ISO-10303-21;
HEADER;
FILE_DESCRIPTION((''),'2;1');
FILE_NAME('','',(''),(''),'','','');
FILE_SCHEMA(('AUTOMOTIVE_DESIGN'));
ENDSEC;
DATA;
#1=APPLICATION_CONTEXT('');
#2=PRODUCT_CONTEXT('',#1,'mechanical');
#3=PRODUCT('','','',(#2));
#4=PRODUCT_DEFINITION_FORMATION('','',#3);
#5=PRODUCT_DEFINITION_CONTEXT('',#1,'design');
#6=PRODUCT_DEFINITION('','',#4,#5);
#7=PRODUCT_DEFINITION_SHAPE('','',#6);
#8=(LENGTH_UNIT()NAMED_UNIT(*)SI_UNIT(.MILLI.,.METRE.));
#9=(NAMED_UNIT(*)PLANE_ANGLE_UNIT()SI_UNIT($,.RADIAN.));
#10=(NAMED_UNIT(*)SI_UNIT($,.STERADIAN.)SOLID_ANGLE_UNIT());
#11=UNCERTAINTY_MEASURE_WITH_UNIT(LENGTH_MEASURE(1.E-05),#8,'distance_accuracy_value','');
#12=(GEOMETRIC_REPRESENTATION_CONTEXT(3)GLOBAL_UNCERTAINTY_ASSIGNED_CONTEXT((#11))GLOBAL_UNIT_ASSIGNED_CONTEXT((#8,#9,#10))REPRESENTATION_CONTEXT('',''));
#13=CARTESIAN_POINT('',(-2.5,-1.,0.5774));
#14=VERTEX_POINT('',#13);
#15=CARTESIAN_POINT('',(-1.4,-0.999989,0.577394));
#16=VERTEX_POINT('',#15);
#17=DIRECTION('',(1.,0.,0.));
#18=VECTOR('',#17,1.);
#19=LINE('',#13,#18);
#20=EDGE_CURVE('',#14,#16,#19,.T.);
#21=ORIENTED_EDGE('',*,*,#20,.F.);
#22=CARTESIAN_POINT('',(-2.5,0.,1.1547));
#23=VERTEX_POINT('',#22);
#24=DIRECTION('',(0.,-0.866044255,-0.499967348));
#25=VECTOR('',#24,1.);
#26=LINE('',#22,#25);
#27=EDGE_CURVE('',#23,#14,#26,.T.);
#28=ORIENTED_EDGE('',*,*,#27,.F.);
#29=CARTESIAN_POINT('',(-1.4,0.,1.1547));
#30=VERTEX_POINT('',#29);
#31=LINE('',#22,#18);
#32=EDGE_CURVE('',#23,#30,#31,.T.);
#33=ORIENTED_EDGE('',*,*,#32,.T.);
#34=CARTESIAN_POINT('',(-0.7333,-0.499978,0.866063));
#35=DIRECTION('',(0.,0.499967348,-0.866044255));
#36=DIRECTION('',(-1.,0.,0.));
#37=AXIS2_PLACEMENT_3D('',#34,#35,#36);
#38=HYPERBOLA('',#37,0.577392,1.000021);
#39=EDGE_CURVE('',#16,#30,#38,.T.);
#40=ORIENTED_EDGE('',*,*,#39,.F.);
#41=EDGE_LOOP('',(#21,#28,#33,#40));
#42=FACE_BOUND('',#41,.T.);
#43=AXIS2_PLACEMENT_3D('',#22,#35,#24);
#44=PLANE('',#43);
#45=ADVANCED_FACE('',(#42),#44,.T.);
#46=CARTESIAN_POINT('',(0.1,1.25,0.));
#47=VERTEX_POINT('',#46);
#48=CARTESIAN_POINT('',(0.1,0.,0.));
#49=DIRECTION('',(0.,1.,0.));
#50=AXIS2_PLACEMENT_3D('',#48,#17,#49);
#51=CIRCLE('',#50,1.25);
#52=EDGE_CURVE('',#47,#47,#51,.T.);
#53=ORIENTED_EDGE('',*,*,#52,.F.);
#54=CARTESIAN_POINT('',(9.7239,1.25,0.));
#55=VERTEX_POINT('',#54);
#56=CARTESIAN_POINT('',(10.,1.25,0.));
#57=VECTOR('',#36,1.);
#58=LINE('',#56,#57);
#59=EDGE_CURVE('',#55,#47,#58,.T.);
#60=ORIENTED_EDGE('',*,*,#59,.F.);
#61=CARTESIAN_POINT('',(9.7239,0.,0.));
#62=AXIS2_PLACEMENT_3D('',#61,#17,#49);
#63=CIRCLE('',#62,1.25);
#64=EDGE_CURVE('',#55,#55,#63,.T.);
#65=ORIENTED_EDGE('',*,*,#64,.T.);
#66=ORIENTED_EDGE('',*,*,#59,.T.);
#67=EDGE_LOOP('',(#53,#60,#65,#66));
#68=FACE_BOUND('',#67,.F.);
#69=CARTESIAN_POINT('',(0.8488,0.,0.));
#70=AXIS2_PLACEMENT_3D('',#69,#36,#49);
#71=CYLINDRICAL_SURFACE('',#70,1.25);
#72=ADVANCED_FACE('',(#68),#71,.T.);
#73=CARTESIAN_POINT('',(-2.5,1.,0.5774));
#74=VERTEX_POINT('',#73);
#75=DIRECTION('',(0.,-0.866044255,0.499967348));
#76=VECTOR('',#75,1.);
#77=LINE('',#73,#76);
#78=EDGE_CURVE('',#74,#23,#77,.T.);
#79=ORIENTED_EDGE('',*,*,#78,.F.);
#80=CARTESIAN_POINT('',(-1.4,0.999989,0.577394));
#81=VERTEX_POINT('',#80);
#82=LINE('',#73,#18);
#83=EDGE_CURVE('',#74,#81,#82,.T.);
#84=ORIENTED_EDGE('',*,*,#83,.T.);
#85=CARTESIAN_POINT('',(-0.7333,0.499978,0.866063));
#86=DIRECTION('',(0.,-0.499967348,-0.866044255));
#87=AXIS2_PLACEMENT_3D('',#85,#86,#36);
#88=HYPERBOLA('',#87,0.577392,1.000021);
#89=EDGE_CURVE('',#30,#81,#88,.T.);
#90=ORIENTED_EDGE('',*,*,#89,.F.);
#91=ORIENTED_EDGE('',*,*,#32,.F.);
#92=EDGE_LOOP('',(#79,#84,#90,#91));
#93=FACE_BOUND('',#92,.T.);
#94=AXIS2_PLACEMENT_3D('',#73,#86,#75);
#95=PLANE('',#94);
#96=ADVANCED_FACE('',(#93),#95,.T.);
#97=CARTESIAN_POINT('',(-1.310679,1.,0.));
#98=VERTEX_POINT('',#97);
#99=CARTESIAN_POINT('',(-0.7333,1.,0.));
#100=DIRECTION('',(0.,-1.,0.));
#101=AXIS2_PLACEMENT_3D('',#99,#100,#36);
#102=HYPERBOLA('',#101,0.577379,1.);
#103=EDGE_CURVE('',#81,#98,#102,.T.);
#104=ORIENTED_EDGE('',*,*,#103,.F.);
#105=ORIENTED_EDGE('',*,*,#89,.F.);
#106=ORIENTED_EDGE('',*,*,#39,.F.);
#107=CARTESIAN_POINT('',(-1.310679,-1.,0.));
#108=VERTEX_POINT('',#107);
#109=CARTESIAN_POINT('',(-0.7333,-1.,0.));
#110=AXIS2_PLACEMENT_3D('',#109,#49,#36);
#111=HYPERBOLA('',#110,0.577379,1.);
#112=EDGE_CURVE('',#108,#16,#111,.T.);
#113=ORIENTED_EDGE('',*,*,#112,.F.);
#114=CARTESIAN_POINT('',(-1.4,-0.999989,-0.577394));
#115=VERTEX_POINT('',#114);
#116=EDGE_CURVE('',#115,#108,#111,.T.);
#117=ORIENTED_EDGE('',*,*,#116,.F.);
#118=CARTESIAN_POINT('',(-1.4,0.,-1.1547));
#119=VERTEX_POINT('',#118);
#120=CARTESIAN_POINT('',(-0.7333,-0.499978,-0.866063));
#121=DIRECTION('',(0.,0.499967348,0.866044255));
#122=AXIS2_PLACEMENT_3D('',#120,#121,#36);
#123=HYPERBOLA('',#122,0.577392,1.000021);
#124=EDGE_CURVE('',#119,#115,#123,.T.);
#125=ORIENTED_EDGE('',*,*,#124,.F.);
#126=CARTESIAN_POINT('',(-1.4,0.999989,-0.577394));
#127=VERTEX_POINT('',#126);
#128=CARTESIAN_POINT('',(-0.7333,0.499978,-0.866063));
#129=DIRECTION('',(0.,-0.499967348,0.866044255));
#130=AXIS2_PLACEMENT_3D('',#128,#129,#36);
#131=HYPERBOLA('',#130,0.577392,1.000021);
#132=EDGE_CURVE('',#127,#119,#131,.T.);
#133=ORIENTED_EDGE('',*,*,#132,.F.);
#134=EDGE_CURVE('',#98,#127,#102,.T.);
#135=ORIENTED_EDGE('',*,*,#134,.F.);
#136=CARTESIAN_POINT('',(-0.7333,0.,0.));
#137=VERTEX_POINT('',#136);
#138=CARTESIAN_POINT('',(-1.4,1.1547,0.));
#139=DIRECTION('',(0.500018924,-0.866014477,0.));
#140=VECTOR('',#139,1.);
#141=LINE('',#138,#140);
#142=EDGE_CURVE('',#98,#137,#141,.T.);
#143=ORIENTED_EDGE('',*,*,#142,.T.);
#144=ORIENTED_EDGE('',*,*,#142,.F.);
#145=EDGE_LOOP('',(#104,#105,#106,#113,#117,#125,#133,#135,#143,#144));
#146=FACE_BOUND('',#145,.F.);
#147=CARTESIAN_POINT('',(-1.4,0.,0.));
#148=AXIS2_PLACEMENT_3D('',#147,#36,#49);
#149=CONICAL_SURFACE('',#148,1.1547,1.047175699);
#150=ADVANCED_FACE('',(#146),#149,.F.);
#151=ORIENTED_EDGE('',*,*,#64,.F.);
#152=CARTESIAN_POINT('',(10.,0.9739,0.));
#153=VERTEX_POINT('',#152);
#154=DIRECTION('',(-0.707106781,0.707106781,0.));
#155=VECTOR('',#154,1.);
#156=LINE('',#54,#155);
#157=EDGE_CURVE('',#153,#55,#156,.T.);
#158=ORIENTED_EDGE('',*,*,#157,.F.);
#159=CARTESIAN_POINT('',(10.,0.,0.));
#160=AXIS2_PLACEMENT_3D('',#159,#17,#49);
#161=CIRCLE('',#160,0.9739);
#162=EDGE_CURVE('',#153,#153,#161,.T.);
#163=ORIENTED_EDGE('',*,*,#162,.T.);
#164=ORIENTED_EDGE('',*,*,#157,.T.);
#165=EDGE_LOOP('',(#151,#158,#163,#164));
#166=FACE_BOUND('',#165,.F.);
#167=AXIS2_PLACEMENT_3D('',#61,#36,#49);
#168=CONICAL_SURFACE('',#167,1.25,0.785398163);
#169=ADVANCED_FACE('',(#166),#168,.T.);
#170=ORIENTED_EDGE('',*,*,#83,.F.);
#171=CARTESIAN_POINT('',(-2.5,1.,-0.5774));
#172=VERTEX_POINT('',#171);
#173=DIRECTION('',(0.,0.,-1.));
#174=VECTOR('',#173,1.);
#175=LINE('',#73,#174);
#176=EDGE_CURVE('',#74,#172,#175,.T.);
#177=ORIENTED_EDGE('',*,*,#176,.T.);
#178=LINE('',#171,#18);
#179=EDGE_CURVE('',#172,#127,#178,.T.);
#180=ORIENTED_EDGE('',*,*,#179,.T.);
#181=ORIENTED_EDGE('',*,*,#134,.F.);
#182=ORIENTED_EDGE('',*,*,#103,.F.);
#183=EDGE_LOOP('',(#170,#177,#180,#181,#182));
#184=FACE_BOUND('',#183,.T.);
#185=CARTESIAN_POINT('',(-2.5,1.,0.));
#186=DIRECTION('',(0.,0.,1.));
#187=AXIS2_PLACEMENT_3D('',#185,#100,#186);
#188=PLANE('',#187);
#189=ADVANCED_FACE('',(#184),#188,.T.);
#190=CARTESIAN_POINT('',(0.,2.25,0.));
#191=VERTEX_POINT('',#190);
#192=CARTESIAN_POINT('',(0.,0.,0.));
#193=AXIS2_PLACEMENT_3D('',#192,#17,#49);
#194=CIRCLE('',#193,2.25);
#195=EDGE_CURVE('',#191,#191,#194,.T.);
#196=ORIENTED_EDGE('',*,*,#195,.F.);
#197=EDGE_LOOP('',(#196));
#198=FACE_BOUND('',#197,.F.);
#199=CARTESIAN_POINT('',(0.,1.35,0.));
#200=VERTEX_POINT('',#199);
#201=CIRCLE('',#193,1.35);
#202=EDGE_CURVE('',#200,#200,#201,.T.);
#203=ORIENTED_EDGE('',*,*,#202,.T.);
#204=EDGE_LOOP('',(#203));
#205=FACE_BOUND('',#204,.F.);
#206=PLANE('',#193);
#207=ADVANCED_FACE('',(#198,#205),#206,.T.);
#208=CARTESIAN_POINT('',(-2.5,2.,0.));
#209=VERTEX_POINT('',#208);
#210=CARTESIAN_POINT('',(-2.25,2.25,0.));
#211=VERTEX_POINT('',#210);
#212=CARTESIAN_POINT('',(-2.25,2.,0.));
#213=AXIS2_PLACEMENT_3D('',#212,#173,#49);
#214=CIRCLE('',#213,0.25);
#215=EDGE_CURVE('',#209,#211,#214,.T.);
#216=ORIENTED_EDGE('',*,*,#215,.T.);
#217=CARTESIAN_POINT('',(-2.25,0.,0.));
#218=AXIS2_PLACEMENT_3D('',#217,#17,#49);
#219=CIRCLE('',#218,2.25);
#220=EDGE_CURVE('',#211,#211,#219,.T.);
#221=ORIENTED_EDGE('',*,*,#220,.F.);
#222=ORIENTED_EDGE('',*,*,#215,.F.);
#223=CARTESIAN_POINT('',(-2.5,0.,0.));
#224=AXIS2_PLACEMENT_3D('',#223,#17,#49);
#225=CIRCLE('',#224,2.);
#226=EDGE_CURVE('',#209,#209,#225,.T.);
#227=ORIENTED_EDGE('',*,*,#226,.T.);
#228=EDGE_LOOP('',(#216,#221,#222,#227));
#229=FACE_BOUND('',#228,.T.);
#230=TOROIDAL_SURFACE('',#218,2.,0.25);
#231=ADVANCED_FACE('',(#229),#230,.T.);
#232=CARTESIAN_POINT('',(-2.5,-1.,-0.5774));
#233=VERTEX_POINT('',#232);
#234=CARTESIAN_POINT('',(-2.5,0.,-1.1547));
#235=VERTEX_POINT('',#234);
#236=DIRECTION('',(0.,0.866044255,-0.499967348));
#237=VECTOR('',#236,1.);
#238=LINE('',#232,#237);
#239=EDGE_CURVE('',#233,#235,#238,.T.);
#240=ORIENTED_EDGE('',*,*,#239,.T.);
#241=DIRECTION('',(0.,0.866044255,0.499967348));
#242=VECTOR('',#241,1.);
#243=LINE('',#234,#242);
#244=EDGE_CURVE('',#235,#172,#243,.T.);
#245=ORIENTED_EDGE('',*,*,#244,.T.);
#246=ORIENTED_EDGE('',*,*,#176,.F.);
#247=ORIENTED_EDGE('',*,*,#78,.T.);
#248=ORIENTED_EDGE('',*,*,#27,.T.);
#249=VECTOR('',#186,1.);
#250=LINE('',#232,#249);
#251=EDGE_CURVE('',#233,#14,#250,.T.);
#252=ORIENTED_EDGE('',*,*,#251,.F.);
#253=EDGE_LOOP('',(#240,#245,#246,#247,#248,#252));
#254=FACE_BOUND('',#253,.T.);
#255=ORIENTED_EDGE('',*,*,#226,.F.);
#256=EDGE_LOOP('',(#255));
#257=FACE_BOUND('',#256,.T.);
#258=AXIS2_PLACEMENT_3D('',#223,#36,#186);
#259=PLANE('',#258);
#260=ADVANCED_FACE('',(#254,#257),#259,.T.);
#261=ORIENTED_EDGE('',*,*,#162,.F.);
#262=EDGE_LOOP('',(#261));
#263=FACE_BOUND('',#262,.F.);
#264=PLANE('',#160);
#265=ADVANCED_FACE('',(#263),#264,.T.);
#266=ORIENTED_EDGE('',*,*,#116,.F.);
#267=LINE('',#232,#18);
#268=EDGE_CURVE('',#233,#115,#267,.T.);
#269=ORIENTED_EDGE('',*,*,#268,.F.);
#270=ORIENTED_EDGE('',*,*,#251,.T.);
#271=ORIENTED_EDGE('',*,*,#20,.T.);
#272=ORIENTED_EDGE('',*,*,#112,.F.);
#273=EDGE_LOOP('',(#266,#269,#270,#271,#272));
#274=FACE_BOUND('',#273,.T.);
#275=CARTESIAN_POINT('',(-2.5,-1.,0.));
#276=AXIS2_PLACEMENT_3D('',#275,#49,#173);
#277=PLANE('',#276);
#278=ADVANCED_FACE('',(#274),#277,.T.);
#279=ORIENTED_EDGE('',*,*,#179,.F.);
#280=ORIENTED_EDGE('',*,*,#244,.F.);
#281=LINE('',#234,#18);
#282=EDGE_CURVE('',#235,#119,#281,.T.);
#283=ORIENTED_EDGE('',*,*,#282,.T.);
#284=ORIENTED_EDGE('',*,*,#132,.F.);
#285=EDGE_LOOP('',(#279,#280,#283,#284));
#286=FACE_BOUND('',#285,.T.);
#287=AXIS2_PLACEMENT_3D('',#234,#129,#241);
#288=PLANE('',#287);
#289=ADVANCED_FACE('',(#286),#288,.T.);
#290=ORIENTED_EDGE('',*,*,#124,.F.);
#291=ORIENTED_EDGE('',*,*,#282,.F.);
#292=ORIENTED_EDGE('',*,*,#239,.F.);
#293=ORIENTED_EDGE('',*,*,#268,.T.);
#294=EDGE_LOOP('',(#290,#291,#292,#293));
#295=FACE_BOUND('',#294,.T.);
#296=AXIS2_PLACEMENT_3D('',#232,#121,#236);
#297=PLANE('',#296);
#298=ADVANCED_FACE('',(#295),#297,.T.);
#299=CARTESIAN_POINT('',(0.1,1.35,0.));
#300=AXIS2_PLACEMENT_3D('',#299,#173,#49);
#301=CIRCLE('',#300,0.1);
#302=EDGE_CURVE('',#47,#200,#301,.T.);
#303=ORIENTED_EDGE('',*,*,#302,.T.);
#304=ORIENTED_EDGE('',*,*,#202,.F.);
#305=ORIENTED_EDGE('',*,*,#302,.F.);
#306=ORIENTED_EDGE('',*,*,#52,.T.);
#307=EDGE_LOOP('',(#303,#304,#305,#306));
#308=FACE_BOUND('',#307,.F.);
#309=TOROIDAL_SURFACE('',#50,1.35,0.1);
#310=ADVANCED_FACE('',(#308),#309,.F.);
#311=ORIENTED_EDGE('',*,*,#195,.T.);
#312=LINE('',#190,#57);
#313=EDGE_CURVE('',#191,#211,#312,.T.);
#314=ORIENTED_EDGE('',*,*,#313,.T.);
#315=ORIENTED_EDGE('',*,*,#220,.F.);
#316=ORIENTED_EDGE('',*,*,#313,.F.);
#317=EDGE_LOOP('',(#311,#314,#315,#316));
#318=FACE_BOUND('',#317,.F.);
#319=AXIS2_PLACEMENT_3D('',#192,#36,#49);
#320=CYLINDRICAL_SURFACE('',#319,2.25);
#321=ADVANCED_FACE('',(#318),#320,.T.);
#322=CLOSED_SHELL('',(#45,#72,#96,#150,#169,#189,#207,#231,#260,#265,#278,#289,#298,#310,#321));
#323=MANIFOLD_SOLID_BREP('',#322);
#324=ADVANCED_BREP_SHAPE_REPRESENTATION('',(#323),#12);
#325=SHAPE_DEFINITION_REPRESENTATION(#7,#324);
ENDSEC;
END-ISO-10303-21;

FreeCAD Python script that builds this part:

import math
import FreeCAD as App
import Part
import Sketcher

V = App.Vector


def edges_at(feature, points):
    """Names of the edges that pass closest to the given points."""
    edges = feature.Shape.Edges
    near = lambda p: min(range(len(edges)), key=lambda i: edges[i].distToShape(Part.Vertex(*p))[0])
    return sorted({f"Edge{near(p) + 1}" for p in points})


def add_polygon(sketch, points):
    """Adds a closed chain of lines whose ends are joined by coincident constraints."""
    first, n = sketch.GeometryCount, len(points)
    for a, b in zip(points, points[1:] + points[:1]):
        sketch.addGeometry(Part.LineSegment(App.Vector(*a, 0), App.Vector(*b, 0)), False)
    for i in range(n):
        sketch.addConstraint(Sketcher.Constraint("Coincident", first + i, 2, first + (i + 1) % n, 1))

doc = App.newDocument("Part")
params = doc.addObject("Spreadsheet::Sheet", "Params")
for row, (alias, value) in enumerate([
    ("sketch1_width", "10 mm"),
    ("sketch1_width2", "2.5 mm"),
    ("sketch1_width3", "1.1 mm"),
    ("sketch1_height", "1 mm"),
    ("sketch1_height2", "1.25 mm"),
    ("revolution_angle", "360 deg"),
    ("fillet_radius", "0.25 mm"),
    ("chamfer_size", "0.2761 mm"),
    ("chamfer_size2", "0.2761 mm"),
    ("fillet2_radius", "0.1 mm"),
], start=1):
    params.set(f"A{row}", alias)
    params.set(f"B{row}", "=" + value)
    params.setAlias(f"B{row}", alias)

body = doc.addObject("PartDesign::Body", "Body")

# Sketch on XY plane
sketch1 = body.newObject("Sketcher::SketchObject", "Sketch")
sketch1.AttachmentSupport = (doc.getObject("XY_Plane"), [""])
sketch1.MapMode = "FlatFace"
add_polygon(sketch1, [(-1.4, 1.2), (-0.7, 0), (10, 0), (10, 1.2), (0, 1.2), (0, 2.2), (-2.5, 2.2), (-2.5, 1.2)])  # lines 0-7
sketch1.addConstraint([
    Sketcher.Constraint("Horizontal", 1),
    Sketcher.Constraint("Vertical", 2),
    Sketcher.Constraint("Horizontal", 3),
    Sketcher.Constraint("Vertical", 4),
    Sketcher.Constraint("Horizontal", 5),
    Sketcher.Constraint("Vertical", 6),
    Sketcher.Constraint("Horizontal", 7),
    Sketcher.Constraint("PointOnObject", 0, 2, -1),
    Sketcher.Constraint("PointOnObject", 3, 2, -2),
    Sketcher.Constraint("DistanceX", 3, 2, 3, 1, 10.0),
    Sketcher.Constraint("DistanceX", 5, 2, 5, 1, 2.5),
    Sketcher.Constraint("DistanceX", 7, 1, 7, 2, 1.1),
    Sketcher.Constraint("DistanceY", 4, 1, 4, 2, 1.0),
    Sketcher.Constraint("DistanceY", 2, 1, 2, 2, 1.25),
    Sketcher.Constraint("DistanceX", 1, 1, 1, 2, 10.7333),
    Sketcher.Constraint("DistanceY", 6, 2, 6, 1, 1.0953),
])
sketch1.setExpression("Constraints[17]", "Params.sketch1_width")
sketch1.setExpression("Constraints[18]", "Params.sketch1_width2")
sketch1.setExpression("Constraints[19]", "Params.sketch1_width3")
sketch1.setExpression("Constraints[20]", "Params.sketch1_height")
sketch1.setExpression("Constraints[21]", "Params.sketch1_height2")
revolution = body.newObject("PartDesign::Revolution", "Revolution")
revolution.Profile = sketch1
revolution.ReferenceAxis = (sketch1, ["H_Axis"])
revolution.setExpression("Angle", "Params.revolution_angle")

# Sketch on YZ plane
sketch2 = body.newObject("Sketcher::SketchObject", "Sketch001")
sketch2.AttachmentSupport = (doc.getObject("YZ_Plane"), [""])
sketch2.MapMode = "FlatFace"
sketch2.AttachmentOffset = App.Placement(V(0, 0, -2.5), App.Rotation())
sketch2.addGeometry([
    Part.LineSegment(V(1, 0.6, 0), V(0, 1.2, 0)),  # 0
    Part.ArcOfCircle(Part.Circle(V(0, 0, 0), V(0, 0, 1), 1.2), math.radians(30), math.radians(90)),  # 1
    Part.ArcOfCircle(Part.Circle(V(0, 0, 0), V(0, 0, 1), 1.2), math.radians(90), math.radians(150)),  # 2
    Part.LineSegment(V(0, 1.2, 0), V(-1, 0.6, 0)),  # 3
    Part.ArcOfCircle(Part.Circle(V(0, 0, 0), V(0, 0, 1), 1.2), math.radians(-30), math.radians(30)),  # 4
    Part.LineSegment(V(1, 0.6, 0), V(1, -0.6, 0)),  # 5
    Part.LineSegment(V(-1, 0.6, 0), V(-1, -0.6, 0)),  # 6
    Part.ArcOfCircle(Part.Circle(V(0, 0, 0), V(0, 0, 1), 1.2), math.radians(150), math.radians(210)),  # 7
    Part.LineSegment(V(-1, -0.6, 0), V(0, -1.2, 0)),  # 8
    Part.ArcOfCircle(Part.Circle(V(0, 0, 0), V(0, 0, 1), 1.2), math.radians(-150), math.radians(-90)),  # 9
    Part.ArcOfCircle(Part.Circle(V(0, 0, 0), V(0, 0, 1), 1.2), math.radians(-90), math.radians(-30)),  # 10
    Part.LineSegment(V(0, -1.2, 0), V(1, -0.6, 0)),  # 11
], False)
sketch2.addConstraint([
    Sketcher.Constraint("Coincident", 0, 1, 1, 1),
    Sketcher.Constraint("Coincident", 1, 2, 0, 2),
    Sketcher.Constraint("Coincident", 2, 1, 3, 1),
    Sketcher.Constraint("Coincident", 3, 2, 2, 2),
    Sketcher.Constraint("Coincident", 4, 1, 5, 2),
    Sketcher.Constraint("Coincident", 5, 1, 4, 2),
    Sketcher.Constraint("Coincident", 6, 1, 7, 1),
    Sketcher.Constraint("Coincident", 7, 2, 6, 2),
    Sketcher.Constraint("Coincident", 8, 1, 9, 1),
    Sketcher.Constraint("Coincident", 9, 2, 8, 2),
    Sketcher.Constraint("Coincident", 10, 1, 11, 1),
    Sketcher.Constraint("Coincident", 11, 2, 10, 2),
    Sketcher.Constraint("Vertical", 5),
    Sketcher.Constraint("Vertical", 6),
    Sketcher.Constraint("Coincident", 1, 3, -1, 1),
    Sketcher.Constraint("Coincident", 2, 3, -1, 1),
    Sketcher.Constraint("Coincident", 4, 3, -1, 1),
    Sketcher.Constraint("Coincident", 7, 3, -1, 1),
    Sketcher.Constraint("Coincident", 9, 3, -1, 1),
    Sketcher.Constraint("Coincident", 10, 3, -1, 1),
    Sketcher.Constraint("Coincident", 2, 1, 1, 2),
    Sketcher.Constraint("Coincident", 5, 1, 0, 1),
    Sketcher.Constraint("Coincident", 6, 1, 3, 2),
    Sketcher.Constraint("Coincident", 8, 1, 7, 2),
    Sketcher.Constraint("Coincident", 10, 1, 9, 2),
    Sketcher.Constraint("PointOnObject", 1, 2, -2),
    Sketcher.Constraint("PointOnObject", 9, 2, -2),
    Sketcher.Constraint("Parallel", 0, 8),
    Sketcher.Constraint("Parallel", 3, 11),
    Sketcher.Constraint("DistanceX", -1, 1, 0, 1, 1.0),
    Sketcher.Constraint("Radius", 1, 1.1547),
])
pad1 = body.newObject("PartDesign::Pad", "Pad")
pad1.Profile = sketch2
pad1.Type = "UpToFirst"
doc.recompute()

fillet = body.newObject("PartDesign::Fillet", "Fillet")
fillet.Base = (pad1, edges_at(pad1, [(-2.5, -2.25, 0)]))
fillet.setExpression("Radius", "Params.fillet_radius")
doc.recompute()

chamfer = body.newObject("PartDesign::Chamfer", "Chamfer")
chamfer.Base = (fillet, edges_at(fillet, [(10, -1.25, 0)]))
chamfer.ChamferType = "Two distances"
chamfer.setExpression("Size", "Params.chamfer_size")
chamfer.setExpression("Size2", "Params.chamfer_size2")
doc.recompute()

fillet2 = body.newObject("PartDesign::Fillet", "Fillet001")
fillet2.Base = (chamfer, edges_at(chamfer, [(0, -1.25, 0)]))
fillet2.setExpression("Radius", "Params.fillet2_radius")

doc.recompute()
